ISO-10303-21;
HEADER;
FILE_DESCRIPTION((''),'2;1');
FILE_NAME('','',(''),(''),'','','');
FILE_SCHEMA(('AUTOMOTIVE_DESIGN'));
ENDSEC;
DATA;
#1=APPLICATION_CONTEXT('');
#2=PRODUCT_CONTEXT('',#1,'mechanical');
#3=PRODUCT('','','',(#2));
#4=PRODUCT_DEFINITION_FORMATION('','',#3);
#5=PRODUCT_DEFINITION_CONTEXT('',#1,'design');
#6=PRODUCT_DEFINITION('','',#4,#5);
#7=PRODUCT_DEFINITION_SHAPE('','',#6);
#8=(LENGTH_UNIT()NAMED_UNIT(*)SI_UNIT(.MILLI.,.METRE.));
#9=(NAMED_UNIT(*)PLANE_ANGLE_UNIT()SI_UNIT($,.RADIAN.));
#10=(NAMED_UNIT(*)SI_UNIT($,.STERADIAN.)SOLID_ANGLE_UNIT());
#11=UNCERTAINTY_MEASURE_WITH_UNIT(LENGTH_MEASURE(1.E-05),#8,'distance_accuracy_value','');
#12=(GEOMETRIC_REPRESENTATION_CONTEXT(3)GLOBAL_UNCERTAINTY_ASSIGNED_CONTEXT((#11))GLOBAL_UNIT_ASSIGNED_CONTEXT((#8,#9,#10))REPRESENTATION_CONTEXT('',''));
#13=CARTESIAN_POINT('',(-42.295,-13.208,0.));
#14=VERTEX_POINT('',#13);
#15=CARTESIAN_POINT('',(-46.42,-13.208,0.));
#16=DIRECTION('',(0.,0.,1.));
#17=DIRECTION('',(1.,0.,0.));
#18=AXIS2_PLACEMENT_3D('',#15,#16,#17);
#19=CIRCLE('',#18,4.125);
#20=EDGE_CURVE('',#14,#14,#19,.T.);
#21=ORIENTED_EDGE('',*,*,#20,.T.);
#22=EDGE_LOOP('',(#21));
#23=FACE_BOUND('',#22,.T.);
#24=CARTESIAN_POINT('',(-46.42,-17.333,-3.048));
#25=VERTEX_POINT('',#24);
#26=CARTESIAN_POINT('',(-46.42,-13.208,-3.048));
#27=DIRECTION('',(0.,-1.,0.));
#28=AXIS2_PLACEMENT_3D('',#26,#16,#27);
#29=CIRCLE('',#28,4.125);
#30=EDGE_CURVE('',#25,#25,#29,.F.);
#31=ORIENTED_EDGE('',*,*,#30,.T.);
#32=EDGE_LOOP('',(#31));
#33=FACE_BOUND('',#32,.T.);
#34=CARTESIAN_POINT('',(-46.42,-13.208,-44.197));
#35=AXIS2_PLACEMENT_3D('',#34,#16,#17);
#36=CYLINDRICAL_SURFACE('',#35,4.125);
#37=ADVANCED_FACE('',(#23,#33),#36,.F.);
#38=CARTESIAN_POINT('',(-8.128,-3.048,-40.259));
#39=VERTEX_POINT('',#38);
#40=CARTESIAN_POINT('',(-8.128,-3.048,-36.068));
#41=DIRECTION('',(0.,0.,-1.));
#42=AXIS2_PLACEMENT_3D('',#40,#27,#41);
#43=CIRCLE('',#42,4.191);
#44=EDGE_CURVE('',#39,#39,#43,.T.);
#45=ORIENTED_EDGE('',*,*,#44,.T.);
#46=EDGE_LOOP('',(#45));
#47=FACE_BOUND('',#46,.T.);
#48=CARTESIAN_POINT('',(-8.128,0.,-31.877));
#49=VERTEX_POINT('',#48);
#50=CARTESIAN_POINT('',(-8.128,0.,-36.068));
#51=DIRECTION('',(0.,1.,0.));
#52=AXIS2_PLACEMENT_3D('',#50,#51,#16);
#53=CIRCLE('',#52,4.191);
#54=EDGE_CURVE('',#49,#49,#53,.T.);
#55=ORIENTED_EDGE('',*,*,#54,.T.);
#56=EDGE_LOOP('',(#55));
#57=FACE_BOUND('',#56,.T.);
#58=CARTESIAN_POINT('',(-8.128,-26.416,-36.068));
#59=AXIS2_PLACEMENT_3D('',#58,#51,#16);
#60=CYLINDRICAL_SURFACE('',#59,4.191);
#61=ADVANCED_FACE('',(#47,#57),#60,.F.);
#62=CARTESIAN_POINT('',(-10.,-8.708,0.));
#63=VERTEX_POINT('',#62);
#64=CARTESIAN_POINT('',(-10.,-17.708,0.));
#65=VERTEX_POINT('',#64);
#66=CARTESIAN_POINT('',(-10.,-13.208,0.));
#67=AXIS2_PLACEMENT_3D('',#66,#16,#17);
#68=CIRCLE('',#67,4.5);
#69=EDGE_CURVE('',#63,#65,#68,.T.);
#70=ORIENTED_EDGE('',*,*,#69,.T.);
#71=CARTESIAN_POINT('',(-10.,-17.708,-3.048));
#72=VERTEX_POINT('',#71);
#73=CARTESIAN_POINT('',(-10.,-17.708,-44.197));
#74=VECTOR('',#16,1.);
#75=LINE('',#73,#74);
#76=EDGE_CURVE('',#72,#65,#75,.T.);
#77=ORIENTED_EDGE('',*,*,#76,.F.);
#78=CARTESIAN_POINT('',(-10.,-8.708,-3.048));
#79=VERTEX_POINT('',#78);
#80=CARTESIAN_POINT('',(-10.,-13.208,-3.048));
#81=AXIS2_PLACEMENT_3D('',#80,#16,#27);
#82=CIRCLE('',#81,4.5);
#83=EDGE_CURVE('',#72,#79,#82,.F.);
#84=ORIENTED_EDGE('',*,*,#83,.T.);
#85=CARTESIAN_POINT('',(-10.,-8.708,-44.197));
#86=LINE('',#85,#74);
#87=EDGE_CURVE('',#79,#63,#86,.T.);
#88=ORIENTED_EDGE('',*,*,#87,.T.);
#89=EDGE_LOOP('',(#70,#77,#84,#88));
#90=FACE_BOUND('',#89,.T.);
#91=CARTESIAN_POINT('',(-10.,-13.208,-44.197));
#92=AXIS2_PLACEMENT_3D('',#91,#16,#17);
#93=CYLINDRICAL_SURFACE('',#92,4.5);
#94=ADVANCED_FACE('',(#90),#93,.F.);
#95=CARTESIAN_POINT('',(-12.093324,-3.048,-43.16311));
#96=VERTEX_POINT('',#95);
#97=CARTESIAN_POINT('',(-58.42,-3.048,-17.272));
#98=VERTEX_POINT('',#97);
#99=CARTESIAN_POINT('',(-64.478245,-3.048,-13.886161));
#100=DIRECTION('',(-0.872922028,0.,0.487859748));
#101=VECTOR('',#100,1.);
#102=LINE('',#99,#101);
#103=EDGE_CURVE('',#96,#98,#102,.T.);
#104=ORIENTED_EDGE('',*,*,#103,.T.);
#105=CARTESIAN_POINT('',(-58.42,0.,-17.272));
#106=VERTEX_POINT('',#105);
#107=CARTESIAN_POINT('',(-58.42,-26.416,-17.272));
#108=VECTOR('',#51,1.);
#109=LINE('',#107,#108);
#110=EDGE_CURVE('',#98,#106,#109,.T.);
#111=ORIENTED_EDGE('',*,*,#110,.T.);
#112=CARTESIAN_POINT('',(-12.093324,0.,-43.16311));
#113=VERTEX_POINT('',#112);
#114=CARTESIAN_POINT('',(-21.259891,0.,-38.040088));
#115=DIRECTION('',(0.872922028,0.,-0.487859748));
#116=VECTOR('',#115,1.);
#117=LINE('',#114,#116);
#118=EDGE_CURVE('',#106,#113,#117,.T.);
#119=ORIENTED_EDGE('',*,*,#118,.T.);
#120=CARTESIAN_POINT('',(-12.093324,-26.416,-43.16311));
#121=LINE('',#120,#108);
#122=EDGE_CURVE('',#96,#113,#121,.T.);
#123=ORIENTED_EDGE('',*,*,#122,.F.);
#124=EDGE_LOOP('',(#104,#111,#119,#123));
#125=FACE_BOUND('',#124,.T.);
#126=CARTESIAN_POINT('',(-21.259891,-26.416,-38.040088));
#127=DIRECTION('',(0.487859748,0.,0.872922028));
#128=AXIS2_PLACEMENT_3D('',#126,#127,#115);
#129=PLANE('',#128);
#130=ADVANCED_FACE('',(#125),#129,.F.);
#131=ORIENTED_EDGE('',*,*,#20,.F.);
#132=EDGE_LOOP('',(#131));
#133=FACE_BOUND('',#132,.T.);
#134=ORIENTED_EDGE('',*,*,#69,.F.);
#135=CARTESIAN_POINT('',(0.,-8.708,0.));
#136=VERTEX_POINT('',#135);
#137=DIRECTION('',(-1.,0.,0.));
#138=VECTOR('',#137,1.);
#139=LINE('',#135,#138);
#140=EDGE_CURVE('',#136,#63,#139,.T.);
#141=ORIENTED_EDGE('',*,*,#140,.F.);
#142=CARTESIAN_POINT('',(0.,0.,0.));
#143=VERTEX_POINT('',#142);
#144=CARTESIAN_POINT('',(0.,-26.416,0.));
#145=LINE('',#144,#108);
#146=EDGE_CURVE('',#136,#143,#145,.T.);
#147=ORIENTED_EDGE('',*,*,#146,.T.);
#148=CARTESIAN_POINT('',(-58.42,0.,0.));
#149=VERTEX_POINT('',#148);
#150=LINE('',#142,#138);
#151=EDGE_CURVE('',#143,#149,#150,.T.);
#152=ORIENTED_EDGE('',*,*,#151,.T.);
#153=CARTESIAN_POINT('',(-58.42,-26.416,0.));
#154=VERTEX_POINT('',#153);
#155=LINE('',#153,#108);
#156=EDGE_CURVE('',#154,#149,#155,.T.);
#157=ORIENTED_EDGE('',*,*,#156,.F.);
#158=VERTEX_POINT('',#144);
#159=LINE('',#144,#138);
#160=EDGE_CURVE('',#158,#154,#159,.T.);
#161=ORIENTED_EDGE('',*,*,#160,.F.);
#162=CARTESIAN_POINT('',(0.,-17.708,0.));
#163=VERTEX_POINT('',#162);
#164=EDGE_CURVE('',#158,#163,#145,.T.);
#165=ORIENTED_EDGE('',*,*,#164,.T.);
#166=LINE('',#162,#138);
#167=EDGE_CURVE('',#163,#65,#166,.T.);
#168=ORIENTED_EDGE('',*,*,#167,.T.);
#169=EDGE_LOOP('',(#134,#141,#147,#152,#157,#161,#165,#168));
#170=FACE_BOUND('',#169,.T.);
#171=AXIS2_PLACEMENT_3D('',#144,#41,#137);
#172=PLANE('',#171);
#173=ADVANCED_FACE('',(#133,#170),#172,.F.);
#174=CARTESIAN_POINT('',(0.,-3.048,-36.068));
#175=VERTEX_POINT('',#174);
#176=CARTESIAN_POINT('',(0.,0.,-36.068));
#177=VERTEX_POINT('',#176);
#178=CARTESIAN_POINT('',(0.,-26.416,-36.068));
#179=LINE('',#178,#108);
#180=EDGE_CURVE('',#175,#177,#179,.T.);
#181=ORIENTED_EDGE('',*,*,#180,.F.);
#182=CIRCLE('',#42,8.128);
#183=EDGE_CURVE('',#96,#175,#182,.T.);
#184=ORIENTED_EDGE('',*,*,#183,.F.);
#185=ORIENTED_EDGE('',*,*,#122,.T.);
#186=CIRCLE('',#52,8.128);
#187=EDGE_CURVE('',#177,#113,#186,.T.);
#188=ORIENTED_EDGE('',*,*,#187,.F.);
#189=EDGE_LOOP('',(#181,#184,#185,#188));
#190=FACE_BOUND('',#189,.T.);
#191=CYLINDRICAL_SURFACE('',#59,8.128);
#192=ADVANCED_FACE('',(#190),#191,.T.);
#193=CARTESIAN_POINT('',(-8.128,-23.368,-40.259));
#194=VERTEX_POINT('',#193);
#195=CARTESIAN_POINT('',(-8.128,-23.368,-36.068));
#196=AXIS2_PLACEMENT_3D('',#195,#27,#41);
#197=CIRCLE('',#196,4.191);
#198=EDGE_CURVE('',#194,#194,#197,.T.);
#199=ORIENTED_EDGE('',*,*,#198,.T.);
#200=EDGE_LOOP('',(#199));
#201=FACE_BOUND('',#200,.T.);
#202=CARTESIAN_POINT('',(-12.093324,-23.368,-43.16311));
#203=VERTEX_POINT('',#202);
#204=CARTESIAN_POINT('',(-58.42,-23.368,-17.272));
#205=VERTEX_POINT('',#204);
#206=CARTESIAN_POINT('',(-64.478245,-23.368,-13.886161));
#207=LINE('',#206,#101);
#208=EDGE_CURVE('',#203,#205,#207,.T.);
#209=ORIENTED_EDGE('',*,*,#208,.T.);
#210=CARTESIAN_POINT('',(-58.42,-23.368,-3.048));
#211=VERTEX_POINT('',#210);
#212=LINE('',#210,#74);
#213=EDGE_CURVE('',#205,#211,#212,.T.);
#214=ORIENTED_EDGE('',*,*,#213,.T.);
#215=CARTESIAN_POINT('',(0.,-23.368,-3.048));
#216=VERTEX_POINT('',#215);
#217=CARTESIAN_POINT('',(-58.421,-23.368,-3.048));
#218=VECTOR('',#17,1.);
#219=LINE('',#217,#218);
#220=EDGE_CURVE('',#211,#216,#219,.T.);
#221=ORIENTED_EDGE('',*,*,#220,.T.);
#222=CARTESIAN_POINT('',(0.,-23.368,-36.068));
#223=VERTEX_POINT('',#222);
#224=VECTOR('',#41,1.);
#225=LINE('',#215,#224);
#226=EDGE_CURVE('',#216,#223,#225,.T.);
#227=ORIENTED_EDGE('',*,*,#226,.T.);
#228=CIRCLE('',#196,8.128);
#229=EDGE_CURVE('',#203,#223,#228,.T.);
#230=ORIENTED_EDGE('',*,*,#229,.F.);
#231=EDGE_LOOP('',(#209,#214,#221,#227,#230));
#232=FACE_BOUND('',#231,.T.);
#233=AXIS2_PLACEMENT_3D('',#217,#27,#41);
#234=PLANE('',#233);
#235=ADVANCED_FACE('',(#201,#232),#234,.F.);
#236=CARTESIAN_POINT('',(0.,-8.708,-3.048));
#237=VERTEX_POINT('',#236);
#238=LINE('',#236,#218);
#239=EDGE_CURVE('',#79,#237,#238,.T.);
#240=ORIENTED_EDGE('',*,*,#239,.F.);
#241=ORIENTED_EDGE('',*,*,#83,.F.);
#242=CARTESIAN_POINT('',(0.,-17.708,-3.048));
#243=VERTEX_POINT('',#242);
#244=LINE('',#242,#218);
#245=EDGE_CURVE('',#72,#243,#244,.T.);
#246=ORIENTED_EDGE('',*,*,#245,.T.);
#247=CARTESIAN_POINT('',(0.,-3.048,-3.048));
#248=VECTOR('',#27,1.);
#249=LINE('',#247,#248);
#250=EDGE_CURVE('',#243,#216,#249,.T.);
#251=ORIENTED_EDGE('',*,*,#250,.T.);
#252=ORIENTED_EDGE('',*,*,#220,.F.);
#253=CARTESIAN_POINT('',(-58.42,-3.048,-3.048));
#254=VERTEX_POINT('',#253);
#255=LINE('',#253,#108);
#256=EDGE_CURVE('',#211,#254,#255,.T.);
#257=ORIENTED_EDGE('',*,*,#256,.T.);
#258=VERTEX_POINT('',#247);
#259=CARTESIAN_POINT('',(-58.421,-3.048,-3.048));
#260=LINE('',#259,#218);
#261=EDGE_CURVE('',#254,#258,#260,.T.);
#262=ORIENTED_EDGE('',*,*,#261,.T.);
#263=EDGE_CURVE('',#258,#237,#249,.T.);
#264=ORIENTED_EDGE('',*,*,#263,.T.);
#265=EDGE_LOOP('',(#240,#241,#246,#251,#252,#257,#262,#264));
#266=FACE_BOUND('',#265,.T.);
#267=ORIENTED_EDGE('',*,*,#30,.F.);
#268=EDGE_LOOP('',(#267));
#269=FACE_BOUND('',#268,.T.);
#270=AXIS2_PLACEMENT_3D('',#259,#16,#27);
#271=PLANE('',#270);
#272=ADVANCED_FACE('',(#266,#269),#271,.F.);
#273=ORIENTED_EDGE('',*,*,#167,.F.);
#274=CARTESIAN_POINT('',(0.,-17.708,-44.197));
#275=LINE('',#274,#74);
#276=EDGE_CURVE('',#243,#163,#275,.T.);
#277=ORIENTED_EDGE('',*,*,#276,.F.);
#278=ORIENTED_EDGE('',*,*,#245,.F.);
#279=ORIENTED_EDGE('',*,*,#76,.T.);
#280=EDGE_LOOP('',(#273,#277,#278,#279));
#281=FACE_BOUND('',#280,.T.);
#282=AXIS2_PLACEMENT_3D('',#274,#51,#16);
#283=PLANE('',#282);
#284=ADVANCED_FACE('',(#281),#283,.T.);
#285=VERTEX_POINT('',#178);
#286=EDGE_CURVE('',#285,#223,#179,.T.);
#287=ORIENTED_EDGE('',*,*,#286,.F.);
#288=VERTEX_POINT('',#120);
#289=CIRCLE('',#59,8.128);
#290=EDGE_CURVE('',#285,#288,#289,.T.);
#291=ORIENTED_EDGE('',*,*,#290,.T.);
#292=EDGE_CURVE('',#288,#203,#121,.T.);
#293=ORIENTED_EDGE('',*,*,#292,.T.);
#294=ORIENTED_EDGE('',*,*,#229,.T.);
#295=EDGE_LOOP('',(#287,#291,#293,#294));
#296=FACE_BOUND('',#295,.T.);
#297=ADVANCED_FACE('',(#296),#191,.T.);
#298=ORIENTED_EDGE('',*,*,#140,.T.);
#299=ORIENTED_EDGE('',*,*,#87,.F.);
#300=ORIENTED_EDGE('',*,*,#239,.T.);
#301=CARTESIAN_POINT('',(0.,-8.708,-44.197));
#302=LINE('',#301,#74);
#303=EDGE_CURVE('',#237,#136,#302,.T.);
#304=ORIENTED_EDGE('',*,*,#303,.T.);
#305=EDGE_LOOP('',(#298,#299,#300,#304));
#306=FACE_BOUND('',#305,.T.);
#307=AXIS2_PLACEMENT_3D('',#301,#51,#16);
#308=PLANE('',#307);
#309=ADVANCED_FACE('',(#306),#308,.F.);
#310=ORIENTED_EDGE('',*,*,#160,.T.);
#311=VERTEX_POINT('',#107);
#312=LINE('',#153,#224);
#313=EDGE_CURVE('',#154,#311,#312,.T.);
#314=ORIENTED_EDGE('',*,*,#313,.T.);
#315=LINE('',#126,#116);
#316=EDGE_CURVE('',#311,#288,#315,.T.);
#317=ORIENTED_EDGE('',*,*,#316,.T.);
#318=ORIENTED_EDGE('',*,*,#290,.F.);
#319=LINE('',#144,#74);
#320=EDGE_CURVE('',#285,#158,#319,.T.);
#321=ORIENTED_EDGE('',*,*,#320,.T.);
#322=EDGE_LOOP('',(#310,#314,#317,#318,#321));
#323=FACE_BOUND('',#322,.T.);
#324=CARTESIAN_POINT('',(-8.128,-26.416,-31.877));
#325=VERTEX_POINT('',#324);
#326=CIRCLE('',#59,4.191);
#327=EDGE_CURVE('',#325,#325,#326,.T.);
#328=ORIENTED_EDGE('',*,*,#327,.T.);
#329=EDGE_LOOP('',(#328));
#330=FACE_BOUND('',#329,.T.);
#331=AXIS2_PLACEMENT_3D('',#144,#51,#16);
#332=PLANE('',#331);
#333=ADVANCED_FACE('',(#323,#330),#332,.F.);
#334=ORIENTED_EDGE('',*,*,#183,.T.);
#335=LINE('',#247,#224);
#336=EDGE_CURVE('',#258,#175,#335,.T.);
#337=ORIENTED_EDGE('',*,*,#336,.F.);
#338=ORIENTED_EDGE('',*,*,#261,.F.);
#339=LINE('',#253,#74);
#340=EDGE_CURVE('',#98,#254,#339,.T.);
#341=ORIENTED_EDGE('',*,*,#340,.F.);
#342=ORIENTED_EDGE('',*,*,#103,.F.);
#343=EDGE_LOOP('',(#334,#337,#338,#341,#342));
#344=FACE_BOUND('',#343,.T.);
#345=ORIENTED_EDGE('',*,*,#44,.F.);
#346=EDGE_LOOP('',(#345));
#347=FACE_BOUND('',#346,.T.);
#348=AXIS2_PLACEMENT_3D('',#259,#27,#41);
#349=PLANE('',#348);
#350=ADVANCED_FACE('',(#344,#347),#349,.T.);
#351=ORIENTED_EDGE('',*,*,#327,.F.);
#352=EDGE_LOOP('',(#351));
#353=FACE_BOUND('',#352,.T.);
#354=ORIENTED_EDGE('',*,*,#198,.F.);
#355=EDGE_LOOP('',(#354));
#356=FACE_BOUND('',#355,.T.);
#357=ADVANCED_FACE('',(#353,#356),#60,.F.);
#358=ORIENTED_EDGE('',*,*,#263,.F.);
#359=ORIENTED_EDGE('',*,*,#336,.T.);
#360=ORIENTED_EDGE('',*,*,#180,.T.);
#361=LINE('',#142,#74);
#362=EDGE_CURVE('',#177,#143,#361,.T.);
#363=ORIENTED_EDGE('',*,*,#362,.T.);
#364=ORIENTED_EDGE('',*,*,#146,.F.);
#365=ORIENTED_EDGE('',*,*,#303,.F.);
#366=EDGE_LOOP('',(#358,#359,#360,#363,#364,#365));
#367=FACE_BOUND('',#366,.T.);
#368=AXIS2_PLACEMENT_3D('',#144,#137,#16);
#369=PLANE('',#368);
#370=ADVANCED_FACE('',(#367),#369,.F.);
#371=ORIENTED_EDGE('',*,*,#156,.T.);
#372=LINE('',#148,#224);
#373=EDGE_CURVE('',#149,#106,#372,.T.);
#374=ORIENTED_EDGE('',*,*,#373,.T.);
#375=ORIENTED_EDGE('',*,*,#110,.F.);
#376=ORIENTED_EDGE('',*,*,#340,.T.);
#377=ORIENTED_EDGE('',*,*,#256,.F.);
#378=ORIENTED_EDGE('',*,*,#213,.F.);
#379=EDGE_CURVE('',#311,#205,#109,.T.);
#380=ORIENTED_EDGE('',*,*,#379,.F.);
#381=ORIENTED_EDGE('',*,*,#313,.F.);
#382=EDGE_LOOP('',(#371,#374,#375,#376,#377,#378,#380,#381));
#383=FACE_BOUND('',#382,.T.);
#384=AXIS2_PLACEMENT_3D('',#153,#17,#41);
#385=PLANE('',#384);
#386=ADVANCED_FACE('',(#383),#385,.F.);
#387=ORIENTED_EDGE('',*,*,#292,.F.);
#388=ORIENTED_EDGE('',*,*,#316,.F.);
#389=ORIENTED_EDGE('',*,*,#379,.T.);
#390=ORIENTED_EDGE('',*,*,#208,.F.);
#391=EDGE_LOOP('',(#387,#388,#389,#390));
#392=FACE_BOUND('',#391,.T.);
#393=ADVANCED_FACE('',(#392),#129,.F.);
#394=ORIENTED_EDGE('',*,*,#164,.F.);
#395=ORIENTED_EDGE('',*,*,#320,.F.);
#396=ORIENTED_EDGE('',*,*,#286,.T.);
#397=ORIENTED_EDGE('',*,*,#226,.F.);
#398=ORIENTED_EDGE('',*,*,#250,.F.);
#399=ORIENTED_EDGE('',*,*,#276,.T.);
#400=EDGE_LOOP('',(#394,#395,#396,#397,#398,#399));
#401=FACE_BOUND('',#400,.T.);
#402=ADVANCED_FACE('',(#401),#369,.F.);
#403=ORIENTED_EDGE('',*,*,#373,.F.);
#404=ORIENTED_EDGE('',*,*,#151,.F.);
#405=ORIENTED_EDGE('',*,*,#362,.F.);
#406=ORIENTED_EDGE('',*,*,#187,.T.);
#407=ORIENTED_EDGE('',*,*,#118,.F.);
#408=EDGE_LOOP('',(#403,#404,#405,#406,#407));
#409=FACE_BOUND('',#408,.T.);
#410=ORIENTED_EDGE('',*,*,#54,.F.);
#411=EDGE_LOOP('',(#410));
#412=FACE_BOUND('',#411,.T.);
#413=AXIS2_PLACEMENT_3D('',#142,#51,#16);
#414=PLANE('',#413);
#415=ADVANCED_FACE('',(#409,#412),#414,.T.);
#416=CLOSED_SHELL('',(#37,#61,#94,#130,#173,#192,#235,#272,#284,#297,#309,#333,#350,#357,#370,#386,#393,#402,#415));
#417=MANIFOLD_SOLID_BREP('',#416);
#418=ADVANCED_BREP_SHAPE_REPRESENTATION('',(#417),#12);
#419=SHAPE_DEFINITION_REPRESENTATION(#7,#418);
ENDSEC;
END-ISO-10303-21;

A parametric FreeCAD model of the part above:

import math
import FreeCAD as App
import Part
import Sketcher

V = App.Vector
Q = App.Units.Quantity

doc = App.newDocument("Part")
body = doc.addObject("PartDesign::Body", "Body")

sketch1 = doc.addObject("Sketcher::SketchObject", "Sketch")
body.addObject(sketch1)
sketch1.AttachmentSupport = (doc.XZ_Plane, [""])
sketch1.MapMode = "FlatFace"
sketch1.addGeometry([
    Part.LineSegment(V(-58.4, 0, 0), V(0, 0, 0)),
    Part.LineSegment(V(0, 0, 0), V(0, -36.1, 0)),
    Part.ArcOfCircle(Part.Circle(V(-8.1, -36.1, 0), V(0, 0, 1), 8.1), math.radians(-119), math.radians(0)),
    Part.LineSegment(V(-12.1, -43.2, 0), V(-58.4, -17.3, 0)),
    Part.LineSegment(V(-58.4, -17.3, 0), V(-58.4, 0, 0)),
    Part.Circle(V(-8.1, -36.1, 0), V(0, 0, 1), 4.2),
], False)
sketch1.addConstraint([
    Sketcher.Constraint("Coincident", 0, 2, 1, 1),
    Sketcher.Constraint("Tangent", 1, 2, 2, 2),
    Sketcher.Constraint("Tangent", 2, 1, 3, 1),
    Sketcher.Constraint("Coincident", 3, 2, 4, 1),
    Sketcher.Constraint("Coincident", 4, 2, 0, 1),
    Sketcher.Constraint("Horizontal", 0),
    Sketcher.Constraint("Vertical", 1),
    Sketcher.Constraint("Vertical", 4),
    Sketcher.Constraint("Coincident", 0, 2, -1, 1),
    Sketcher.Constraint("Coincident", 5, 3, 2, 3),
    Sketcher.Constraint("Diameter", 5, Q("0.33 in")),
    Sketcher.Constraint("Radius", 2, Q("0.32 in")),
    Sketcher.Constraint("DistanceX", 0, 1, 0, 2, Q("2.3 in")),
    Sketcher.Constraint("DistanceY", 1, 2, 1, 1, Q("1.42 in")),
    Sketcher.Constraint("DistanceY", 4, 1, 4, 2, Q("0.68 in")),
])
pad1 = doc.addObject("PartDesign::Pad", "Pad")
body.addObject(pad1)
pad1.Profile = sketch1
pad1.Length = Q("1.04 in")

sketch2 = doc.addObject("Sketcher::SketchObject", "Sketch001")
body.addObject(sketch2)
sketch2.AttachmentSupport = (doc.YZ_Plane, [""])
sketch2.MapMode = "FlatFace"
sketch2.addGeometry([
    Part.LineSegment(V(-3, -3, 0), V(-23, -3, 0)),
    Part.LineSegment(V(-23, -3, 0), V(-23, -44, 0)),
    Part.LineSegment(V(-23, -44, 0), V(-3, -44, 0)),
    Part.LineSegment(V(-3, -44, 0), V(-3, -3, 0)),
], False)
sketch2.addConstraint([
    Sketcher.Constraint("Coincident", 0, 2, 1, 1),
    Sketcher.Constraint("Coincident", 1, 2, 2, 1),
    Sketcher.Constraint("Coincident", 2, 2, 3, 1),
    Sketcher.Constraint("Coincident", 3, 2, 0, 1),
    Sketcher.Constraint("Horizontal", 0),
    Sketcher.Constraint("Vertical", 1),
    Sketcher.Constraint("Horizontal", 2),
    Sketcher.Constraint("Vertical", 3),
    Sketcher.Constraint("DistanceX", 0, 2, 0, 1, Q("0.8 in")),
    Sketcher.Constraint("DistanceY", 1, 2, 1, 1, Q("1.62 in")),
    Sketcher.Constraint("DistanceX", 0, 2, -1, 1, Q("0.92 in")),
    Sketcher.Constraint("DistanceY", 0, 2, -1, 1, Q("0.12 in")),
])
pocket1 = doc.addObject("PartDesign::Pocket", "Pocket")
body.addObject(pocket1)
pocket1.Profile = sketch2
pocket1.Type = "UpToFirst"

sketch3 = doc.addObject("Sketcher::SketchObject", "Sketch002")
body.addObject(sketch3)
sketch3.AttachmentSupport = (doc.XY_Plane, [""])
sketch3.MapMode = "FlatFace"
sketch3.addGeometry(Part.Circle(V(-46.4, -13.2, 0), V(0, 0, 1), 4.1), False)
sketch3.addConstraint([
    Sketcher.Constraint("Diameter", 0, Q("8.25 mm")),
    Sketcher.Constraint("DistanceY", 0, 3, -1, 1, Q("0.52 in")),
    Sketcher.Constraint("DistanceX", 0, 3, -1, 1, Q("46.42 mm")),
])
pocket2 = doc.addObject("PartDesign::Pocket", "Pocket001")
body.addObject(pocket2)
pocket2.Profile = sketch3
pocket2.Type = "UpToFirst"

sketch4 = doc.addObject("Sketcher::SketchObject", "Sketch003")
body.addObject(sketch4)
sketch4.AttachmentSupport = (doc.XY_Plane, [""])
sketch4.MapMode = "FlatFace"
sketch4.addGeometry([
    Part.LineSegment(V(0, -8.7, 0), V(-10, -8.7, 0)),
    Part.ArcOfCircle(Part.Circle(V(-10, -13.2, 0), V(0, 0, 1), 4.5), math.radians(90), math.radians(270)),
    Part.LineSegment(V(-10, -17.7, 0), V(0, -17.7, 0)),
    Part.LineSegment(V(0, -17.7, 0), V(0, -8.7, 0)),
], False)
sketch4.addConstraint([
    Sketcher.Constraint("Tangent", 0, 2, 1, 1),
    Sketcher.Constraint("Tangent", 1, 2, 2, 1),
    Sketcher.Constraint("Coincident", 2, 2, 3, 1),
    Sketcher.Constraint("Coincident", 3, 2, 0, 1),
    Sketcher.Constraint("Horizontal", 0),
    Sketcher.Constraint("Horizontal", 2),
    Sketcher.Constraint("Vertical", 3),
    Sketcher.Constraint("PointOnObject", 2, 2, -2),
    Sketcher.Constraint("DistanceY", 1, 3, -1, 1, Q("0.52 in")),
    Sketcher.Constraint("Radius", 1, Q("4.5 mm")),
    Sketcher.Constraint("DistanceX", 0, 2, 0, 1, Q("10 mm")),
])
pocket3 = doc.addObject("PartDesign::Pocket", "Pocket002")
body.addObject(pocket3)
pocket3.Profile = sketch4
pocket3.Type = "UpToFirst"

doc.recompute()
